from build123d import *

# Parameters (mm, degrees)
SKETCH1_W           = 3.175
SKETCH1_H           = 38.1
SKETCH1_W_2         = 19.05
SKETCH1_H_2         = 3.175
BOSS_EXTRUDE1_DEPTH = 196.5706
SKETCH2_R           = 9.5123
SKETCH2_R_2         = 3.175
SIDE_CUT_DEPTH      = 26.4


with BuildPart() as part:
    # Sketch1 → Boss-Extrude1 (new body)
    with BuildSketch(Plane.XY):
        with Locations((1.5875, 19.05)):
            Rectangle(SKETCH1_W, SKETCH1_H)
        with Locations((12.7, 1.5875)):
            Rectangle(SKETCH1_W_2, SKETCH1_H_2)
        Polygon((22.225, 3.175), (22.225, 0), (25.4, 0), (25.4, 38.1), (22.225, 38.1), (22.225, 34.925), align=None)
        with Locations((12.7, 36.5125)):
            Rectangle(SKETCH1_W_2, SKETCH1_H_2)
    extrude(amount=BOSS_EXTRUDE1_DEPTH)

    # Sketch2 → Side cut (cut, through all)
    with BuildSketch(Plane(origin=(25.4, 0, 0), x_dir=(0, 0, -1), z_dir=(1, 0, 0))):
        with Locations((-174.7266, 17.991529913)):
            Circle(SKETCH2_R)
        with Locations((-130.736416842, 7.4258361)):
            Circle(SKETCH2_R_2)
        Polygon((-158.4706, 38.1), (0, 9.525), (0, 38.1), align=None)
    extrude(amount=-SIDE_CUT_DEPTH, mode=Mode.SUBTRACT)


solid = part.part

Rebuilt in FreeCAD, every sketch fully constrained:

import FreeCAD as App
import Part
import Sketcher

V = App.Vector
Q = App.Units.Quantity

doc = App.newDocument("Part")
body = doc.addObject("PartDesign::Body", "Body")

# Sketch on XY plane
sketch1 = body.newObject("Sketcher::SketchObject", "Sketch")
sketch1.AttachmentSupport = (doc.getObject("XY_Plane"), [""])
sketch1.MapMode = "FlatFace"
sketch1.addGeometry([
    Part.LineSegment(V(0, 38, 0), V(0, 0, 0)),  # 0
    Part.LineSegment(V(0, 0, 0), V(25, 0, 0)),  # 1
    Part.LineSegment(V(25, 0, 0), V(25, 38, 0)),  # 2
    Part.LineSegment(V(25, 38, 0), V(0, 38, 0)),  # 3
    Part.LineSegment(V(22, 35, 0), V(22, 3, 0)),  # 4
    Part.LineSegment(V(22, 3, 0), V(3, 3, 0)),  # 5
    Part.LineSegment(V(3, 3, 0), V(3, 35, 0)),  # 6
    Part.LineSegment(V(3, 35, 0), V(22, 35, 0)),  # 7
], False)
sketch1.addConstraint([
    Sketcher.Constraint("Coincident", 0, 2, 1, 1),
    Sketcher.Constraint("Coincident", 1, 2, 2, 1),
    Sketcher.Constraint("Coincident", 2, 2, 3, 1),
    Sketcher.Constraint("Coincident", 3, 2, 0, 1),
    Sketcher.Constraint("Coincident", 4, 2, 5, 1),
    Sketcher.Constraint("Coincident", 5, 2, 6, 1),
    Sketcher.Constraint("Coincident", 6, 2, 7, 1),
    Sketcher.Constraint("Coincident", 7, 2, 4, 1),
    Sketcher.Constraint("Vertical", 0),
    Sketcher.Constraint("Horizontal", 1),
    Sketcher.Constraint("Vertical", 2),
    Sketcher.Constraint("Horizontal", 3),
    Sketcher.Constraint("Vertical", 4),
    Sketcher.Constraint("Horizontal", 5),
    Sketcher.Constraint("Vertical", 6),
    Sketcher.Constraint("Horizontal", 7),
    Sketcher.Constraint("Coincident", 0, 2, -1, 1),
    Sketcher.Constraint("DistanceX", 1, 1, 1, 2, Q("1 in")),
    Sketcher.Constraint("DistanceY", 0, 2, 0, 1, Q("1.5 in")),
    Sketcher.Constraint("DistanceX", 5, 2, 5, 1, Q("0.75 in")),
    Sketcher.Constraint("DistanceY", 4, 2, 4, 1, Q("1.25 in")),
    Sketcher.Constraint("DistanceX", -1, 1, 4, 2, Q("0.875 in")),
    Sketcher.Constraint("DistanceY", -1, 1, 4, 2, Q("0.125 in")),
])
pad1 = body.newObject("PartDesign::Pad", "Pad")
pad1.Profile = sketch1
pad1.Length = Q("7.739 in")

# Sketch on YZ plane
sketch2 = body.newObject("Sketcher::SketchObject", "Sketch001")
sketch2.AttachmentSupport = (doc.getObject("YZ_Plane"), [""])
sketch2.MapMode = "FlatFace"
sketch2.AttachmentOffset = App.Placement(V(0, 0, 1 * 25.4), App.Rotation())
sketch2.addGeometry([
    Part.Circle(V(18, 174.7, 0), V(0, 0, 1), 9.5),  # 0
    Part.Circle(V(7.4, 130.7, 0), V(0, 0, 1), 3.2),  # 1
    Part.LineSegment(V(38.1, 158.5, 0), V(9.5, 0, 0)),  # 2
    Part.LineSegment(V(9.5, 0, 0), V(38.1, 0, 0)),  # 3
    Part.LineSegment(V(38.1, 0, 0), V(38.1, 158.5, 0)),  # 4
], False)
sketch2.addConstraint([
    Sketcher.Constraint("Coincident", 2, 2, 3, 1),
    Sketcher.Constraint("Coincident", 3, 2, 4, 1),
    Sketcher.Constraint("Coincident", 4, 2, 2, 1),
    Sketcher.Constraint("Horizontal", 3),
    Sketcher.Constraint("Vertical", 4),
    Sketcher.Constraint("PointOnObject", 2, 2, -1),
    Sketcher.Constraint("Diameter", 1, Q("0.25 in")),
    Sketcher.Constraint("Diameter", 0, Q("0.749 in")),
    Sketcher.Constraint("DistanceX", -1, 1, 3, 2, Q("1.5 in")),
    Sketcher.Constraint("DistanceX", 3, 1, 3, 2, Q("1.125 in")),
    Sketcher.Constraint("DistanceY", 4, 1, 4, 2, Q("6.239 in")),
    Sketcher.Constraint("DistanceY", 4, 2, 0, 3, Q("0.64 in")),
    Sketcher.Constraint("DistanceX", -1, 1, 0, 3, Q("17.99153 mm")),
    Sketcher.Constraint("DistanceX", -1, 1, 1, 3, Q("7.425836 mm")),
    Sketcher.Constraint("DistanceY", -1, 1, 1, 3, Q("130.736417 mm")),
])
pocket1 = body.newObject("PartDesign::Pocket", "Pocket")
pocket1.Profile = sketch2
pocket1.Type = "ThroughAll"

doc.recompute()
